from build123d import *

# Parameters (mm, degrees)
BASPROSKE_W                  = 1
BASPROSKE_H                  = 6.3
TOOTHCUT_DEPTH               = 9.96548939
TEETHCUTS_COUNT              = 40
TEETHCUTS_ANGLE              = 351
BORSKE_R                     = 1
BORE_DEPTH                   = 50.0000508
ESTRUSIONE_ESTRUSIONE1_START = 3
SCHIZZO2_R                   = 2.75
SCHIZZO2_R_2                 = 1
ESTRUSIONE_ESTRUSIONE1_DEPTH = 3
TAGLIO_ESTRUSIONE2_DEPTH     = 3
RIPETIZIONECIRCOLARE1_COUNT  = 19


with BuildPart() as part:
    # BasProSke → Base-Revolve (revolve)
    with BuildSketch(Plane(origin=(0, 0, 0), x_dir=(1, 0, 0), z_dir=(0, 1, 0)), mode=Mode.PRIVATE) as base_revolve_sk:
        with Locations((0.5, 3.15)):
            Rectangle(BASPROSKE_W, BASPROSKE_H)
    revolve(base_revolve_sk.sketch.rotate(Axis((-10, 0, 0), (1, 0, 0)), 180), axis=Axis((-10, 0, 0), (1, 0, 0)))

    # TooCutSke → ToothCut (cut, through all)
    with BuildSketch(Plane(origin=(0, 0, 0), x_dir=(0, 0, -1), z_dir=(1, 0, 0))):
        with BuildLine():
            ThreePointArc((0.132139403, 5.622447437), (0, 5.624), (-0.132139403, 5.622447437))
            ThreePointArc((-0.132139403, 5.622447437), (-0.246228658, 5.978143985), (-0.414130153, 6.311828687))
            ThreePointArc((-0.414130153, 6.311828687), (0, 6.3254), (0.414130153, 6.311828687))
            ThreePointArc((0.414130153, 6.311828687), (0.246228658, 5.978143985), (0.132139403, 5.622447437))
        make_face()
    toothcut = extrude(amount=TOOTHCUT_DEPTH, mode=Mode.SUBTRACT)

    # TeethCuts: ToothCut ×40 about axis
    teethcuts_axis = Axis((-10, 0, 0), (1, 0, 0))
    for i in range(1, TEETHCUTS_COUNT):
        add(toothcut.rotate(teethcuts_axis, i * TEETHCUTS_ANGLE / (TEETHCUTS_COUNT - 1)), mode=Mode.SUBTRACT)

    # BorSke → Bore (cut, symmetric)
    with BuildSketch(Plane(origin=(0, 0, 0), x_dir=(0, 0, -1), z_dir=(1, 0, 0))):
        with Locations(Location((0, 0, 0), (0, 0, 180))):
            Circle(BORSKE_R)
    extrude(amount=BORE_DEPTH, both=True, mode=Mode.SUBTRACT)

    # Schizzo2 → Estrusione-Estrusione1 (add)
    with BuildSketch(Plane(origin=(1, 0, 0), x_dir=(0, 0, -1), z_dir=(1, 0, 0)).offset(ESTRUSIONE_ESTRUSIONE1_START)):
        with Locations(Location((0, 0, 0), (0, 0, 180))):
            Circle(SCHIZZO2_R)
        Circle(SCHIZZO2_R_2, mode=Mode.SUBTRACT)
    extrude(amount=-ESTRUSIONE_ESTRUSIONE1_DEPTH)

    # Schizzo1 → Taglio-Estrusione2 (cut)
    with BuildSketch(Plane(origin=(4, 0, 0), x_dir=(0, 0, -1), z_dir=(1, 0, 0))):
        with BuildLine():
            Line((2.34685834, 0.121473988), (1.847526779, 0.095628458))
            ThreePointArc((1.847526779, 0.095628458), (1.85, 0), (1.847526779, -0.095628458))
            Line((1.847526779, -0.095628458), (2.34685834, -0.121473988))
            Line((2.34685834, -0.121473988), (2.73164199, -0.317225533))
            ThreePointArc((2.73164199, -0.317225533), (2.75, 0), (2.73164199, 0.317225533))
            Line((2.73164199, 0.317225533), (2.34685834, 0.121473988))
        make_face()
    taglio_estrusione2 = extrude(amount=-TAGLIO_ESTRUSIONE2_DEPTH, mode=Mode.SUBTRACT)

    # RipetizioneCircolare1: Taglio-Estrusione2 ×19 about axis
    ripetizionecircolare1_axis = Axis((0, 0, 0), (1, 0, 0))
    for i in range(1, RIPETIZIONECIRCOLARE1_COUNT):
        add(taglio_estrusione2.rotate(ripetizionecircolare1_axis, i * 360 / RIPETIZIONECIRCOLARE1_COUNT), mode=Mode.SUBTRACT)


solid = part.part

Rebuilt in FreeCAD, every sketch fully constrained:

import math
import FreeCAD as App
import Part
import Sketcher
from FreeCAD import Vector
Q = App.Units.Quantity

doc = App.newDocument("Part")
params = doc.addObject("Spreadsheet::Sheet", "Params")
for row, (alias, value) in enumerate([
    ("sketch1_width", "1 mm"),
    ("sketch1_height", "6.3 mm"),
    ("revolution_angle", "360 deg"),
    ("sketch2_radius", "2.4 mm"),
    ("sketch3_diameter", "2 mm"),
    ("pocket2_length", "100.000102 mm"),
    ("sketch4_diameter", "2 mm"),
    ("sketch4_diameter2", "5.5 mm"),
    ("pad1_length", "3 mm"),
    ("sketch5_radius", "1.85 mm"),
    ("sketch5_radius2", "2.75 mm"),
    ("sketch5_length", "0.5 mm"),
    ("pocket3_length", "3 mm"),
], start=1):
    params.set(f"A{row}", alias)
    params.set(f"B{row}", "=" + value)
    params.setAlias(f"B{row}", alias)

body = doc.addObject("PartDesign::Body", "Body")

# Sketch on XZ plane
sketch1 = doc.addObject("Sketcher::SketchObject", "Sketch")
body.addObject(sketch1)
sketch1.AttachmentSupport = (doc.XZ_Plane, [""])
sketch1.MapMode = "FlatFace"
sketch1.addGeometry(Part.LineSegment(Vector(0, -6.3, 0), Vector(0, 0, 0)), False)
sketch1.addGeometry(Part.LineSegment(Vector(0, 0, 0), Vector(1, 0, 0)), False)
sketch1.addGeometry(Part.LineSegment(Vector(1, 0, 0), Vector(1, -6.3, 0)), False)
sketch1.addGeometry(Part.LineSegment(Vector(1, -6.3, 0), Vector(0, -6.3, 0)), False)
sketch1.addConstraint(Sketcher.Constraint("Coincident", 0, 2, 1, 1))
sketch1.addConstraint(Sketcher.Constraint("Coincident", 1, 2, 2, 1))
sketch1.addConstraint(Sketcher.Constraint("Coincident", 2, 2, 3, 1))
sketch1.addConstraint(Sketcher.Constraint("Coincident", 3, 2, 0, 1))
sketch1.addConstraint(Sketcher.Constraint("Vertical", 0))
sketch1.addConstraint(Sketcher.Constraint("Horizontal", 1))
sketch1.addConstraint(Sketcher.Constraint("Vertical", 2))
sketch1.addConstraint(Sketcher.Constraint("Horizontal", 3))
sketch1.addConstraint(Sketcher.Constraint("Coincident", 0, 2, -1, 1))
sketch1.addConstraint(Sketcher.Constraint("DistanceX", 1, 1, 1, 2, Q("1 mm")))
sketch1.addConstraint(Sketcher.Constraint("DistanceY", 0, 1, 0, 2, Q("6.3 mm")))
sketch1.setExpression("Constraints[9]", "Params.sketch1_width")
sketch1.setExpression("Constraints[10]", "Params.sketch1_height")
revolution = doc.addObject("PartDesign::Revolution", "Revolution")
body.addObject(revolution)
revolution.Profile = sketch1
revolution.ReferenceAxis = (sketch1, ["H_Axis"])
revolution.setExpression("Angle", "Params.revolution_angle")

# Sketch on YZ plane
sketch2 = doc.addObject("Sketcher::SketchObject", "Sketch001")
body.addObject(sketch2)
sketch2.AttachmentSupport = (doc.YZ_Plane, [""])
sketch2.MapMode = "FlatFace"
sketch2.addGeometry(Part.ArcOfCircle(Part.Circle(Vector(-0.000001, 0, 0), Vector(0, 0, 1), 5.624001), math.radians(-1.346324), math.radians(1.346324)), False)
sketch2.addGeometry(Part.ArcOfCircle(Part.Circle(Vector(5.069505, -2.467574, 0), Vector(0, 0, 1), 2.4), math.radians(58.826258), math.radians(76.679803)), False)
sketch2.addGeometry(Part.ArcOfCircle(Part.Circle(Vector(0, 0, 0), Vector(0, 0, 1), 6.3254), math.radians(-3.753896), math.radians(3.753896)), False)
sketch2.addGeometry(Part.ArcOfCircle(Part.Circle(Vector(5.069505, 2.467574, 0), Vector(0, 0, 1), 2.4), math.radians(-76.679803), math.radians(-58.826258)), False)
sketch2.addConstraint(Sketcher.Constraint("Coincident", 0, 1, 1, 2))
sketch2.addConstraint(Sketcher.Constraint("Coincident", 1, 1, 2, 1))
sketch2.addConstraint(Sketcher.Constraint("Coincident", 2, 2, 3, 2))
sketch2.addConstraint(Sketcher.Constraint("Coincident", 3, 1, 0, 2))
sketch2.addConstraint(Sketcher.Constraint("Coincident", 0, 3, -1, 1))
sketch2.addConstraint(Sketcher.Constraint("Coincident", 2, 3, -1, 1))
sketch2.addConstraint(Sketcher.Constraint("Equal", 1, 3))
sketch2.addConstraint(Sketcher.Constraint("Symmetric", 1, 3, 3, 3, -1))
sketch2.addConstraint(Sketcher.Constraint("Radius", 1, Q("2.4 mm")))
sketch2.addConstraint(Sketcher.Constraint("Radius", 0, Q("5.624001 mm")))
sketch2.addConstraint(Sketcher.Constraint("Radius", 2, Q("6.3254 mm")))
sketch2.addConstraint(Sketcher.Constraint("DistanceY", 0, 1, -1, 1, Q("0.132139 mm")))
sketch2.addConstraint(Sketcher.Constraint("DistanceX", -1, 1, 1, 1, Q("6.311829 mm")))
sketch2.setExpression("Constraints[8]", "Params.sketch2_radius")
pocket1 = doc.addObject("PartDesign::Pocket", "Pocket")
body.addObject(pocket1)
pocket1.Profile = sketch2
pocket1.Type = "ThroughAll"
pocket1.Reversed = True
doc.recompute()

polarpattern = doc.addObject("PartDesign::PolarPattern", "PolarPattern")
body.addObject(polarpattern)
polarpattern.Originals = [pocket1]
polarpattern.Axis = (doc.X_Axis, [""])
polarpattern.Angle = 360
polarpattern.Occurrences = 40
body.Tip = polarpattern

# Sketch on YZ plane
sketch3 = doc.addObject("Sketcher::SketchObject", "Sketch002")
body.addObject(sketch3)
sketch3.AttachmentSupport = (doc.YZ_Plane, [""])
sketch3.MapMode = "FlatFace"
sketch3.addGeometry(Part.Circle(Vector(0, 0, 0), Vector(0, 0, 1), 1), False)
sketch3.addConstraint(Sketcher.Constraint("Coincident", 0, 3, -1, 1))
sketch3.addConstraint(Sketcher.Constraint("Diameter", 0, Q("2 mm")))
sketch3.setExpression("Constraints[1]", "Params.sketch3_diameter")
pocket2 = doc.addObject("PartDesign::Pocket", "Pocket001")
body.addObject(pocket2)
pocket2.Profile = sketch3
pocket2.setExpression("Length", "Params.pocket2_length")
pocket2.Midplane = True

# Sketch on YZ plane
sketch4 = doc.addObject("Sketcher::SketchObject", "Sketch003")
body.addObject(sketch4)
sketch4.AttachmentSupport = (doc.YZ_Plane, [""])
sketch4.MapMode = "FlatFace"
sketch4.AttachmentOffset = App.Placement(Vector(0, 0, 4), App.Rotation())
sketch4.addGeometry(Part.Circle(Vector(0, 0, 0), Vector(0, 0, 1), 2.75), False)
sketch4.addGeometry(Part.Circle(Vector(0, 0, 0), Vector(0, 0, 1), 1), False)
sketch4.addConstraint(Sketcher.Constraint("Coincident", 0, 3, -1, 1))
sketch4.addConstraint(Sketcher.Constraint("Coincident", 1, 3, -1, 1))
sketch4.addConstraint(Sketcher.Constraint("Diameter", 1, Q("2 mm")))
sketch4.addConstraint(Sketcher.Constraint("Diameter", 0, Q("5.5 mm")))
sketch4.setExpression("Constraints[2]", "Params.sketch4_diameter")
sketch4.setExpression("Constraints[3]", "Params.sketch4_diameter2")
pad1 = doc.addObject("PartDesign::Pad", "Pad")
body.addObject(pad1)
pad1.Profile = sketch4
pad1.setExpression("Length", "Params.pad1_length")
pad1.Reversed = True

# Sketch on YZ plane
sketch5 = doc.addObject("Sketcher::SketchObject", "Sketch004")
body.addObject(sketch5)
sketch5.AttachmentSupport = (doc.YZ_Plane, [""])
sketch5.MapMode = "FlatFace"
sketch5.AttachmentOffset = App.Placement(Vector(0, 0, 4), App.Rotation())
sketch5.addGeometry(Part.LineSegment(Vector(0.121474, -2.346858, 0), Vector(0.095628, -1.847527, 0)), False)
sketch5.addGeometry(Part.ArcOfCircle(Part.Circle(Vector(0, 0, 0), Vector(0, 0, 1), 1.85), math.radians(-92.963), math.radians(-87.037)), False)
sketch5.addGeometry(Part.LineSegment(Vector(-0.095628, -1.847527, 0), Vector(-0.121474, -2.346858, 0)), False)
sketch5.addGeometry(Part.LineSegment(Vector(-0.121474, -2.346858, 0), Vector(-0.317226, -2.731642, 0)), False)
sketch5.addGeometry(Part.ArcOfCircle(Part.Circle(Vector(0, 0, 0), Vector(0, 0, 1), 2.75), math.radians(-96.624086), math.radians(-83.375914)), False)
sketch5.addGeometry(Part.LineSegment(Vector(0.317226, -2.731642, 0), Vector(0.121474, -2.346858, 0)), False)
sketch5.addConstraint(Sketcher.Constraint("Coincident", 0, 2, 1, 2))
sketch5.addConstraint(Sketcher.Constraint("Coincident", 1, 1, 2, 1))
sketch5.addConstraint(Sketcher.Constraint("Coincident", 2, 2, 3, 1))
sketch5.addConstraint(Sketcher.Constraint("Coincident", 3, 2, 4, 1))
sketch5.addConstraint(Sketcher.Constraint("Coincident", 4, 2, 5, 1))
sketch5.addConstraint(Sketcher.Constraint("Coincident", 5, 2, 0, 1))
sketch5.addConstraint(Sketcher.Constraint("Coincident", 1, 3, -1, 1))
sketch5.addConstraint(Sketcher.Constraint("Coincident", 4, 3, -1, 1))
sketch5.addConstraint(Sketcher.Constraint("Symmetric", 2, 2, 5, 2, -2))
sketch5.addConstraint(Sketcher.Constraint("Horizontal", 0, 2, 1, 1))
sketch5.addConstraint(Sketcher.Constraint("Horizontal", 3, 2, 4, 2))
sketch5.addConstraint(Sketcher.Constraint("Radius", 1, Q("1.85 mm")))
sketch5.addConstraint(Sketcher.Constraint("Radius", 4, Q("2.75 mm")))
sketch5.addConstraint(Sketcher.Constraint("Distance", 0, Q("0.5 mm")))
sketch5.addConstraint(Sketcher.Constraint("DistanceX", 2, 2, 4, 2, Q("0.4387 mm")))
sketch5.addConstraint(Sketcher.Constraint("DistanceX", -1, 1, 0, 2, Q("0.095628 mm")))
sketch5.addConstraint(Sketcher.Constraint("DistanceY", 2, 2, -1, 1, Q("2.346858 mm")))
sketch5.setExpression("Constraints[11]", "Params.sketch5_radius")
sketch5.setExpression("Constraints[12]", "Params.sketch5_radius2")
sketch5.setExpression("Constraints[13]", "Params.sketch5_length")
pocket3 = doc.addObject("PartDesign::Pocket", "Pocket002")
body.addObject(pocket3)
pocket3.Profile = sketch5
pocket3.setExpression("Length", "Params.pocket3_length")
doc.recompute()

polarpattern2 = doc.addObject("PartDesign::PolarPattern", "PolarPattern001")
body.addObject(polarpattern2)
polarpattern2.Originals = [pocket3]
polarpattern2.Axis = (doc.X_Axis, [""])
polarpattern2.Angle = 360
polarpattern2.Occurrences = 19
body.Tip = polarpattern2

doc.recompute()
